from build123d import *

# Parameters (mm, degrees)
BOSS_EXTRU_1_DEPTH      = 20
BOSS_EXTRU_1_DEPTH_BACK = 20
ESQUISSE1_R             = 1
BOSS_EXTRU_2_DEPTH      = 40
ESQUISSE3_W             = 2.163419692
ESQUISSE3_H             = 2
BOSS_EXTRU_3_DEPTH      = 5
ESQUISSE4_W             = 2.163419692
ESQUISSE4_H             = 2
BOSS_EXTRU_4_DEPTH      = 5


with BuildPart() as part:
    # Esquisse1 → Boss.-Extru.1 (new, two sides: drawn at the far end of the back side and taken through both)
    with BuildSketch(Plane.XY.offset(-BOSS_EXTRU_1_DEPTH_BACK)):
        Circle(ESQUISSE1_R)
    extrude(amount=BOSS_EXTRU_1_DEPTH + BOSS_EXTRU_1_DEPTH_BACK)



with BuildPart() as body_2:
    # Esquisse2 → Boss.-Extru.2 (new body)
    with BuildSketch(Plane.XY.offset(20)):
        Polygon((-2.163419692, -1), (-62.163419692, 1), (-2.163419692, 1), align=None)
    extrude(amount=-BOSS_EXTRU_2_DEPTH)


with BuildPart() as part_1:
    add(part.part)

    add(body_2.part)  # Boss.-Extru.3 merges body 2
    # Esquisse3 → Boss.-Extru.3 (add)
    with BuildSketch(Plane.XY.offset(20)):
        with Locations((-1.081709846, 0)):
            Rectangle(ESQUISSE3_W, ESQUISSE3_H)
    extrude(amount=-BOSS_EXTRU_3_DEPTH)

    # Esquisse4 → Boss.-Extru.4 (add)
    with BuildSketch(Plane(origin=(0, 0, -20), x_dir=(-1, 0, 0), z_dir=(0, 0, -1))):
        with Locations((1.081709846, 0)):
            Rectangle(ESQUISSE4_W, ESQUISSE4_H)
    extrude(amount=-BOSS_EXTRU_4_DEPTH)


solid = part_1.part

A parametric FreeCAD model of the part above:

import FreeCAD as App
import Part
import Sketcher
Q = App.Units.Quantity


def add_polygon(sketch, points):
    """Adds a closed chain of lines whose ends are joined by coincident constraints."""
    first, n = sketch.GeometryCount, len(points)
    for a, b in zip(points, points[1:] + points[:1]):
        sketch.addGeometry(Part.LineSegment(App.Vector(*a, 0), App.Vector(*b, 0)), False)
    for i in range(n):
        sketch.addConstraint(Sketcher.Constraint("Coincident", first + i, 2, first + (i + 1) % n, 1))

doc = App.newDocument("Part")
params = doc.addObject("Spreadsheet::Sheet", "Params")
for row, (alias, value) in enumerate([
    ("sketch1_diameter", "2 mm"),
    ("pad1_length", "20 mm"),
    ("pad1_length2", "20 mm"),
    ("sketch2_width", "60 mm"),
    ("sketch2_height", "2 mm"),
    ("pad2_length", "40 mm"),
    ("sketch3_height", "2 mm"),
    ("pad3_length", "5 mm"),
    ("sketch4_height", "2 mm"),
    ("pad4_length", "5 mm"),
], start=1):
    params.set(f"A{row}", alias)
    params.set(f"B{row}", "=" + value)
    params.setAlias(f"B{row}", alias)

body = doc.addObject("PartDesign::Body", "Body")

# Sketch on XY plane
sketch1 = body.newObject("Sketcher::SketchObject", "Sketch")
sketch1.AttachmentSupport = (doc.getObject("XY_Plane"), [""])
sketch1.MapMode = "FlatFace"
sketch1.addGeometry(Part.Circle(App.Vector(0, 0, 0), App.Vector(0, 0, 1), 1), False)
sketch1.addConstraint(Sketcher.Constraint("Coincident", 0, 3, -1, 1))
sketch1.addConstraint(Sketcher.Constraint("Diameter", 0, Q("2 mm")))
sketch1.setExpression("Constraints[1]", "Params.sketch1_diameter")
pad1 = body.newObject("PartDesign::Pad", "Pad")
pad1.Profile = sketch1
pad1.Type = "TwoLengths"
pad1.setExpression("Length", "Params.pad1_length")
pad1.setExpression("Length2", "Params.pad1_length2")
body2 = doc.addObject("PartDesign::Body", "Body001")

# Sketch on XY plane
sketch2 = body2.newObject("Sketcher::SketchObject", "Sketch001")
sketch2.AttachmentSupport = (doc.getObject("XY_Plane001"), [""])
sketch2.MapMode = "FlatFace"
sketch2.AttachmentOffset = App.Placement(App.Vector(0, 0, 20), App.Rotation())
add_polygon(sketch2, [(-62.16342, 1), (-2.16342, -1), (-2.16342, 1)])  # lines 0-2
sketch2.addConstraint(Sketcher.Constraint("Vertical", 1))
sketch2.addConstraint(Sketcher.Constraint("Horizontal", 2))
sketch2.addConstraint(Sketcher.Constraint("DistanceX", 2, 2, 2, 1, Q("60 mm")))
sketch2.addConstraint(Sketcher.Constraint("DistanceY", 1, 1, 1, 2, Q("2 mm")))
sketch2.addConstraint(Sketcher.Constraint("DistanceY", 0, 2, -1, 1, Q("1 mm")))
sketch2.addConstraint(Sketcher.Constraint("DistanceX", 0, 2, -1, 1, Q("2.16342 mm")))
sketch2.setExpression("Constraints[5]", "Params.sketch2_width")
sketch2.setExpression("Constraints[6]", "Params.sketch2_height")
pad2 = body2.newObject("PartDesign::Pad", "Pad001")
pad2.Profile = sketch2
pad2.setExpression("Length", "Params.pad2_length")
pad2.Reversed = True
body.AllowCompound = True
doc.recompute()

boolean = body.newObject("PartDesign::Boolean", "Boolean")
boolean.Type = "Fuse"
boolean.addObjects([body2])

# Sketch on XY plane
sketch3 = body.newObject("Sketcher::SketchObject", "Sketch002")
sketch3.AttachmentSupport = (doc.getObject("XY_Plane"), [""])
sketch3.MapMode = "FlatFace"
sketch3.AttachmentOffset = App.Placement(App.Vector(0, 0, 20), App.Rotation())
add_polygon(sketch3, [(-2.16342, 1), (-2.16342, -1), (0, -1), (0, 1)])  # lines 0-3
sketch3.addConstraint(Sketcher.Constraint("Vertical", 0))
sketch3.addConstraint(Sketcher.Constraint("Horizontal", 1))
sketch3.addConstraint(Sketcher.Constraint("Vertical", 2))
sketch3.addConstraint(Sketcher.Constraint("Horizontal", 3))
sketch3.addConstraint(Sketcher.Constraint("Symmetric", 1, 2, 2, 2, -1, 1))
sketch3.addConstraint(Sketcher.Constraint("DistanceY", 0, 2, 0, 1, Q("2 mm")))
sketch3.addConstraint(Sketcher.Constraint("DistanceX", 1, 1, 1, 2, Q("2.16342 mm")))
sketch3.setExpression("Constraints[9]", "Params.sketch3_height")
pad3 = body.newObject("PartDesign::Pad", "Pad002")
pad3.Profile = sketch3
pad3.setExpression("Length", "Params.pad3_length")
pad3.Reversed = True

# Sketch on XY plane
sketch4 = body.newObject("Sketcher::SketchObject", "Sketch003")
sketch4.AttachmentSupport = (doc.getObject("XY_Plane"), [""])
sketch4.MapMode = "FlatFace"
sketch4.AttachmentOffset = App.Placement(App.Vector(0, 0, -20), App.Rotation())
add_polygon(sketch4, [(0, 1), (0, -1), (-2.16342, -1), (-2.16342, 1)])  # lines 0-3
sketch4.addConstraint(Sketcher.Constraint("Vertical", 0))
sketch4.addConstraint(Sketcher.Constraint("Horizontal", 1))
sketch4.addConstraint(Sketcher.Constraint("Vertical", 2))
sketch4.addConstraint(Sketcher.Constraint("Horizontal", 3))
sketch4.addConstraint(Sketcher.Constraint("Symmetric", 0, 2, 3, 2, -1, 1))
sketch4.addConstraint(Sketcher.Constraint("DistanceY", 0, 2, 0, 1, Q("2 mm")))
sketch4.addConstraint(Sketcher.Constraint("DistanceX", 1, 2, 1, 1, Q("2.16342 mm")))
sketch4.setExpression("Constraints[9]", "Params.sketch4_height")
pad4 = body.newObject("PartDesign::Pad", "Pad003")
pad4.Profile = sketch4
pad4.setExpression("Length", "Params.pad4_length")

doc.recompute()
